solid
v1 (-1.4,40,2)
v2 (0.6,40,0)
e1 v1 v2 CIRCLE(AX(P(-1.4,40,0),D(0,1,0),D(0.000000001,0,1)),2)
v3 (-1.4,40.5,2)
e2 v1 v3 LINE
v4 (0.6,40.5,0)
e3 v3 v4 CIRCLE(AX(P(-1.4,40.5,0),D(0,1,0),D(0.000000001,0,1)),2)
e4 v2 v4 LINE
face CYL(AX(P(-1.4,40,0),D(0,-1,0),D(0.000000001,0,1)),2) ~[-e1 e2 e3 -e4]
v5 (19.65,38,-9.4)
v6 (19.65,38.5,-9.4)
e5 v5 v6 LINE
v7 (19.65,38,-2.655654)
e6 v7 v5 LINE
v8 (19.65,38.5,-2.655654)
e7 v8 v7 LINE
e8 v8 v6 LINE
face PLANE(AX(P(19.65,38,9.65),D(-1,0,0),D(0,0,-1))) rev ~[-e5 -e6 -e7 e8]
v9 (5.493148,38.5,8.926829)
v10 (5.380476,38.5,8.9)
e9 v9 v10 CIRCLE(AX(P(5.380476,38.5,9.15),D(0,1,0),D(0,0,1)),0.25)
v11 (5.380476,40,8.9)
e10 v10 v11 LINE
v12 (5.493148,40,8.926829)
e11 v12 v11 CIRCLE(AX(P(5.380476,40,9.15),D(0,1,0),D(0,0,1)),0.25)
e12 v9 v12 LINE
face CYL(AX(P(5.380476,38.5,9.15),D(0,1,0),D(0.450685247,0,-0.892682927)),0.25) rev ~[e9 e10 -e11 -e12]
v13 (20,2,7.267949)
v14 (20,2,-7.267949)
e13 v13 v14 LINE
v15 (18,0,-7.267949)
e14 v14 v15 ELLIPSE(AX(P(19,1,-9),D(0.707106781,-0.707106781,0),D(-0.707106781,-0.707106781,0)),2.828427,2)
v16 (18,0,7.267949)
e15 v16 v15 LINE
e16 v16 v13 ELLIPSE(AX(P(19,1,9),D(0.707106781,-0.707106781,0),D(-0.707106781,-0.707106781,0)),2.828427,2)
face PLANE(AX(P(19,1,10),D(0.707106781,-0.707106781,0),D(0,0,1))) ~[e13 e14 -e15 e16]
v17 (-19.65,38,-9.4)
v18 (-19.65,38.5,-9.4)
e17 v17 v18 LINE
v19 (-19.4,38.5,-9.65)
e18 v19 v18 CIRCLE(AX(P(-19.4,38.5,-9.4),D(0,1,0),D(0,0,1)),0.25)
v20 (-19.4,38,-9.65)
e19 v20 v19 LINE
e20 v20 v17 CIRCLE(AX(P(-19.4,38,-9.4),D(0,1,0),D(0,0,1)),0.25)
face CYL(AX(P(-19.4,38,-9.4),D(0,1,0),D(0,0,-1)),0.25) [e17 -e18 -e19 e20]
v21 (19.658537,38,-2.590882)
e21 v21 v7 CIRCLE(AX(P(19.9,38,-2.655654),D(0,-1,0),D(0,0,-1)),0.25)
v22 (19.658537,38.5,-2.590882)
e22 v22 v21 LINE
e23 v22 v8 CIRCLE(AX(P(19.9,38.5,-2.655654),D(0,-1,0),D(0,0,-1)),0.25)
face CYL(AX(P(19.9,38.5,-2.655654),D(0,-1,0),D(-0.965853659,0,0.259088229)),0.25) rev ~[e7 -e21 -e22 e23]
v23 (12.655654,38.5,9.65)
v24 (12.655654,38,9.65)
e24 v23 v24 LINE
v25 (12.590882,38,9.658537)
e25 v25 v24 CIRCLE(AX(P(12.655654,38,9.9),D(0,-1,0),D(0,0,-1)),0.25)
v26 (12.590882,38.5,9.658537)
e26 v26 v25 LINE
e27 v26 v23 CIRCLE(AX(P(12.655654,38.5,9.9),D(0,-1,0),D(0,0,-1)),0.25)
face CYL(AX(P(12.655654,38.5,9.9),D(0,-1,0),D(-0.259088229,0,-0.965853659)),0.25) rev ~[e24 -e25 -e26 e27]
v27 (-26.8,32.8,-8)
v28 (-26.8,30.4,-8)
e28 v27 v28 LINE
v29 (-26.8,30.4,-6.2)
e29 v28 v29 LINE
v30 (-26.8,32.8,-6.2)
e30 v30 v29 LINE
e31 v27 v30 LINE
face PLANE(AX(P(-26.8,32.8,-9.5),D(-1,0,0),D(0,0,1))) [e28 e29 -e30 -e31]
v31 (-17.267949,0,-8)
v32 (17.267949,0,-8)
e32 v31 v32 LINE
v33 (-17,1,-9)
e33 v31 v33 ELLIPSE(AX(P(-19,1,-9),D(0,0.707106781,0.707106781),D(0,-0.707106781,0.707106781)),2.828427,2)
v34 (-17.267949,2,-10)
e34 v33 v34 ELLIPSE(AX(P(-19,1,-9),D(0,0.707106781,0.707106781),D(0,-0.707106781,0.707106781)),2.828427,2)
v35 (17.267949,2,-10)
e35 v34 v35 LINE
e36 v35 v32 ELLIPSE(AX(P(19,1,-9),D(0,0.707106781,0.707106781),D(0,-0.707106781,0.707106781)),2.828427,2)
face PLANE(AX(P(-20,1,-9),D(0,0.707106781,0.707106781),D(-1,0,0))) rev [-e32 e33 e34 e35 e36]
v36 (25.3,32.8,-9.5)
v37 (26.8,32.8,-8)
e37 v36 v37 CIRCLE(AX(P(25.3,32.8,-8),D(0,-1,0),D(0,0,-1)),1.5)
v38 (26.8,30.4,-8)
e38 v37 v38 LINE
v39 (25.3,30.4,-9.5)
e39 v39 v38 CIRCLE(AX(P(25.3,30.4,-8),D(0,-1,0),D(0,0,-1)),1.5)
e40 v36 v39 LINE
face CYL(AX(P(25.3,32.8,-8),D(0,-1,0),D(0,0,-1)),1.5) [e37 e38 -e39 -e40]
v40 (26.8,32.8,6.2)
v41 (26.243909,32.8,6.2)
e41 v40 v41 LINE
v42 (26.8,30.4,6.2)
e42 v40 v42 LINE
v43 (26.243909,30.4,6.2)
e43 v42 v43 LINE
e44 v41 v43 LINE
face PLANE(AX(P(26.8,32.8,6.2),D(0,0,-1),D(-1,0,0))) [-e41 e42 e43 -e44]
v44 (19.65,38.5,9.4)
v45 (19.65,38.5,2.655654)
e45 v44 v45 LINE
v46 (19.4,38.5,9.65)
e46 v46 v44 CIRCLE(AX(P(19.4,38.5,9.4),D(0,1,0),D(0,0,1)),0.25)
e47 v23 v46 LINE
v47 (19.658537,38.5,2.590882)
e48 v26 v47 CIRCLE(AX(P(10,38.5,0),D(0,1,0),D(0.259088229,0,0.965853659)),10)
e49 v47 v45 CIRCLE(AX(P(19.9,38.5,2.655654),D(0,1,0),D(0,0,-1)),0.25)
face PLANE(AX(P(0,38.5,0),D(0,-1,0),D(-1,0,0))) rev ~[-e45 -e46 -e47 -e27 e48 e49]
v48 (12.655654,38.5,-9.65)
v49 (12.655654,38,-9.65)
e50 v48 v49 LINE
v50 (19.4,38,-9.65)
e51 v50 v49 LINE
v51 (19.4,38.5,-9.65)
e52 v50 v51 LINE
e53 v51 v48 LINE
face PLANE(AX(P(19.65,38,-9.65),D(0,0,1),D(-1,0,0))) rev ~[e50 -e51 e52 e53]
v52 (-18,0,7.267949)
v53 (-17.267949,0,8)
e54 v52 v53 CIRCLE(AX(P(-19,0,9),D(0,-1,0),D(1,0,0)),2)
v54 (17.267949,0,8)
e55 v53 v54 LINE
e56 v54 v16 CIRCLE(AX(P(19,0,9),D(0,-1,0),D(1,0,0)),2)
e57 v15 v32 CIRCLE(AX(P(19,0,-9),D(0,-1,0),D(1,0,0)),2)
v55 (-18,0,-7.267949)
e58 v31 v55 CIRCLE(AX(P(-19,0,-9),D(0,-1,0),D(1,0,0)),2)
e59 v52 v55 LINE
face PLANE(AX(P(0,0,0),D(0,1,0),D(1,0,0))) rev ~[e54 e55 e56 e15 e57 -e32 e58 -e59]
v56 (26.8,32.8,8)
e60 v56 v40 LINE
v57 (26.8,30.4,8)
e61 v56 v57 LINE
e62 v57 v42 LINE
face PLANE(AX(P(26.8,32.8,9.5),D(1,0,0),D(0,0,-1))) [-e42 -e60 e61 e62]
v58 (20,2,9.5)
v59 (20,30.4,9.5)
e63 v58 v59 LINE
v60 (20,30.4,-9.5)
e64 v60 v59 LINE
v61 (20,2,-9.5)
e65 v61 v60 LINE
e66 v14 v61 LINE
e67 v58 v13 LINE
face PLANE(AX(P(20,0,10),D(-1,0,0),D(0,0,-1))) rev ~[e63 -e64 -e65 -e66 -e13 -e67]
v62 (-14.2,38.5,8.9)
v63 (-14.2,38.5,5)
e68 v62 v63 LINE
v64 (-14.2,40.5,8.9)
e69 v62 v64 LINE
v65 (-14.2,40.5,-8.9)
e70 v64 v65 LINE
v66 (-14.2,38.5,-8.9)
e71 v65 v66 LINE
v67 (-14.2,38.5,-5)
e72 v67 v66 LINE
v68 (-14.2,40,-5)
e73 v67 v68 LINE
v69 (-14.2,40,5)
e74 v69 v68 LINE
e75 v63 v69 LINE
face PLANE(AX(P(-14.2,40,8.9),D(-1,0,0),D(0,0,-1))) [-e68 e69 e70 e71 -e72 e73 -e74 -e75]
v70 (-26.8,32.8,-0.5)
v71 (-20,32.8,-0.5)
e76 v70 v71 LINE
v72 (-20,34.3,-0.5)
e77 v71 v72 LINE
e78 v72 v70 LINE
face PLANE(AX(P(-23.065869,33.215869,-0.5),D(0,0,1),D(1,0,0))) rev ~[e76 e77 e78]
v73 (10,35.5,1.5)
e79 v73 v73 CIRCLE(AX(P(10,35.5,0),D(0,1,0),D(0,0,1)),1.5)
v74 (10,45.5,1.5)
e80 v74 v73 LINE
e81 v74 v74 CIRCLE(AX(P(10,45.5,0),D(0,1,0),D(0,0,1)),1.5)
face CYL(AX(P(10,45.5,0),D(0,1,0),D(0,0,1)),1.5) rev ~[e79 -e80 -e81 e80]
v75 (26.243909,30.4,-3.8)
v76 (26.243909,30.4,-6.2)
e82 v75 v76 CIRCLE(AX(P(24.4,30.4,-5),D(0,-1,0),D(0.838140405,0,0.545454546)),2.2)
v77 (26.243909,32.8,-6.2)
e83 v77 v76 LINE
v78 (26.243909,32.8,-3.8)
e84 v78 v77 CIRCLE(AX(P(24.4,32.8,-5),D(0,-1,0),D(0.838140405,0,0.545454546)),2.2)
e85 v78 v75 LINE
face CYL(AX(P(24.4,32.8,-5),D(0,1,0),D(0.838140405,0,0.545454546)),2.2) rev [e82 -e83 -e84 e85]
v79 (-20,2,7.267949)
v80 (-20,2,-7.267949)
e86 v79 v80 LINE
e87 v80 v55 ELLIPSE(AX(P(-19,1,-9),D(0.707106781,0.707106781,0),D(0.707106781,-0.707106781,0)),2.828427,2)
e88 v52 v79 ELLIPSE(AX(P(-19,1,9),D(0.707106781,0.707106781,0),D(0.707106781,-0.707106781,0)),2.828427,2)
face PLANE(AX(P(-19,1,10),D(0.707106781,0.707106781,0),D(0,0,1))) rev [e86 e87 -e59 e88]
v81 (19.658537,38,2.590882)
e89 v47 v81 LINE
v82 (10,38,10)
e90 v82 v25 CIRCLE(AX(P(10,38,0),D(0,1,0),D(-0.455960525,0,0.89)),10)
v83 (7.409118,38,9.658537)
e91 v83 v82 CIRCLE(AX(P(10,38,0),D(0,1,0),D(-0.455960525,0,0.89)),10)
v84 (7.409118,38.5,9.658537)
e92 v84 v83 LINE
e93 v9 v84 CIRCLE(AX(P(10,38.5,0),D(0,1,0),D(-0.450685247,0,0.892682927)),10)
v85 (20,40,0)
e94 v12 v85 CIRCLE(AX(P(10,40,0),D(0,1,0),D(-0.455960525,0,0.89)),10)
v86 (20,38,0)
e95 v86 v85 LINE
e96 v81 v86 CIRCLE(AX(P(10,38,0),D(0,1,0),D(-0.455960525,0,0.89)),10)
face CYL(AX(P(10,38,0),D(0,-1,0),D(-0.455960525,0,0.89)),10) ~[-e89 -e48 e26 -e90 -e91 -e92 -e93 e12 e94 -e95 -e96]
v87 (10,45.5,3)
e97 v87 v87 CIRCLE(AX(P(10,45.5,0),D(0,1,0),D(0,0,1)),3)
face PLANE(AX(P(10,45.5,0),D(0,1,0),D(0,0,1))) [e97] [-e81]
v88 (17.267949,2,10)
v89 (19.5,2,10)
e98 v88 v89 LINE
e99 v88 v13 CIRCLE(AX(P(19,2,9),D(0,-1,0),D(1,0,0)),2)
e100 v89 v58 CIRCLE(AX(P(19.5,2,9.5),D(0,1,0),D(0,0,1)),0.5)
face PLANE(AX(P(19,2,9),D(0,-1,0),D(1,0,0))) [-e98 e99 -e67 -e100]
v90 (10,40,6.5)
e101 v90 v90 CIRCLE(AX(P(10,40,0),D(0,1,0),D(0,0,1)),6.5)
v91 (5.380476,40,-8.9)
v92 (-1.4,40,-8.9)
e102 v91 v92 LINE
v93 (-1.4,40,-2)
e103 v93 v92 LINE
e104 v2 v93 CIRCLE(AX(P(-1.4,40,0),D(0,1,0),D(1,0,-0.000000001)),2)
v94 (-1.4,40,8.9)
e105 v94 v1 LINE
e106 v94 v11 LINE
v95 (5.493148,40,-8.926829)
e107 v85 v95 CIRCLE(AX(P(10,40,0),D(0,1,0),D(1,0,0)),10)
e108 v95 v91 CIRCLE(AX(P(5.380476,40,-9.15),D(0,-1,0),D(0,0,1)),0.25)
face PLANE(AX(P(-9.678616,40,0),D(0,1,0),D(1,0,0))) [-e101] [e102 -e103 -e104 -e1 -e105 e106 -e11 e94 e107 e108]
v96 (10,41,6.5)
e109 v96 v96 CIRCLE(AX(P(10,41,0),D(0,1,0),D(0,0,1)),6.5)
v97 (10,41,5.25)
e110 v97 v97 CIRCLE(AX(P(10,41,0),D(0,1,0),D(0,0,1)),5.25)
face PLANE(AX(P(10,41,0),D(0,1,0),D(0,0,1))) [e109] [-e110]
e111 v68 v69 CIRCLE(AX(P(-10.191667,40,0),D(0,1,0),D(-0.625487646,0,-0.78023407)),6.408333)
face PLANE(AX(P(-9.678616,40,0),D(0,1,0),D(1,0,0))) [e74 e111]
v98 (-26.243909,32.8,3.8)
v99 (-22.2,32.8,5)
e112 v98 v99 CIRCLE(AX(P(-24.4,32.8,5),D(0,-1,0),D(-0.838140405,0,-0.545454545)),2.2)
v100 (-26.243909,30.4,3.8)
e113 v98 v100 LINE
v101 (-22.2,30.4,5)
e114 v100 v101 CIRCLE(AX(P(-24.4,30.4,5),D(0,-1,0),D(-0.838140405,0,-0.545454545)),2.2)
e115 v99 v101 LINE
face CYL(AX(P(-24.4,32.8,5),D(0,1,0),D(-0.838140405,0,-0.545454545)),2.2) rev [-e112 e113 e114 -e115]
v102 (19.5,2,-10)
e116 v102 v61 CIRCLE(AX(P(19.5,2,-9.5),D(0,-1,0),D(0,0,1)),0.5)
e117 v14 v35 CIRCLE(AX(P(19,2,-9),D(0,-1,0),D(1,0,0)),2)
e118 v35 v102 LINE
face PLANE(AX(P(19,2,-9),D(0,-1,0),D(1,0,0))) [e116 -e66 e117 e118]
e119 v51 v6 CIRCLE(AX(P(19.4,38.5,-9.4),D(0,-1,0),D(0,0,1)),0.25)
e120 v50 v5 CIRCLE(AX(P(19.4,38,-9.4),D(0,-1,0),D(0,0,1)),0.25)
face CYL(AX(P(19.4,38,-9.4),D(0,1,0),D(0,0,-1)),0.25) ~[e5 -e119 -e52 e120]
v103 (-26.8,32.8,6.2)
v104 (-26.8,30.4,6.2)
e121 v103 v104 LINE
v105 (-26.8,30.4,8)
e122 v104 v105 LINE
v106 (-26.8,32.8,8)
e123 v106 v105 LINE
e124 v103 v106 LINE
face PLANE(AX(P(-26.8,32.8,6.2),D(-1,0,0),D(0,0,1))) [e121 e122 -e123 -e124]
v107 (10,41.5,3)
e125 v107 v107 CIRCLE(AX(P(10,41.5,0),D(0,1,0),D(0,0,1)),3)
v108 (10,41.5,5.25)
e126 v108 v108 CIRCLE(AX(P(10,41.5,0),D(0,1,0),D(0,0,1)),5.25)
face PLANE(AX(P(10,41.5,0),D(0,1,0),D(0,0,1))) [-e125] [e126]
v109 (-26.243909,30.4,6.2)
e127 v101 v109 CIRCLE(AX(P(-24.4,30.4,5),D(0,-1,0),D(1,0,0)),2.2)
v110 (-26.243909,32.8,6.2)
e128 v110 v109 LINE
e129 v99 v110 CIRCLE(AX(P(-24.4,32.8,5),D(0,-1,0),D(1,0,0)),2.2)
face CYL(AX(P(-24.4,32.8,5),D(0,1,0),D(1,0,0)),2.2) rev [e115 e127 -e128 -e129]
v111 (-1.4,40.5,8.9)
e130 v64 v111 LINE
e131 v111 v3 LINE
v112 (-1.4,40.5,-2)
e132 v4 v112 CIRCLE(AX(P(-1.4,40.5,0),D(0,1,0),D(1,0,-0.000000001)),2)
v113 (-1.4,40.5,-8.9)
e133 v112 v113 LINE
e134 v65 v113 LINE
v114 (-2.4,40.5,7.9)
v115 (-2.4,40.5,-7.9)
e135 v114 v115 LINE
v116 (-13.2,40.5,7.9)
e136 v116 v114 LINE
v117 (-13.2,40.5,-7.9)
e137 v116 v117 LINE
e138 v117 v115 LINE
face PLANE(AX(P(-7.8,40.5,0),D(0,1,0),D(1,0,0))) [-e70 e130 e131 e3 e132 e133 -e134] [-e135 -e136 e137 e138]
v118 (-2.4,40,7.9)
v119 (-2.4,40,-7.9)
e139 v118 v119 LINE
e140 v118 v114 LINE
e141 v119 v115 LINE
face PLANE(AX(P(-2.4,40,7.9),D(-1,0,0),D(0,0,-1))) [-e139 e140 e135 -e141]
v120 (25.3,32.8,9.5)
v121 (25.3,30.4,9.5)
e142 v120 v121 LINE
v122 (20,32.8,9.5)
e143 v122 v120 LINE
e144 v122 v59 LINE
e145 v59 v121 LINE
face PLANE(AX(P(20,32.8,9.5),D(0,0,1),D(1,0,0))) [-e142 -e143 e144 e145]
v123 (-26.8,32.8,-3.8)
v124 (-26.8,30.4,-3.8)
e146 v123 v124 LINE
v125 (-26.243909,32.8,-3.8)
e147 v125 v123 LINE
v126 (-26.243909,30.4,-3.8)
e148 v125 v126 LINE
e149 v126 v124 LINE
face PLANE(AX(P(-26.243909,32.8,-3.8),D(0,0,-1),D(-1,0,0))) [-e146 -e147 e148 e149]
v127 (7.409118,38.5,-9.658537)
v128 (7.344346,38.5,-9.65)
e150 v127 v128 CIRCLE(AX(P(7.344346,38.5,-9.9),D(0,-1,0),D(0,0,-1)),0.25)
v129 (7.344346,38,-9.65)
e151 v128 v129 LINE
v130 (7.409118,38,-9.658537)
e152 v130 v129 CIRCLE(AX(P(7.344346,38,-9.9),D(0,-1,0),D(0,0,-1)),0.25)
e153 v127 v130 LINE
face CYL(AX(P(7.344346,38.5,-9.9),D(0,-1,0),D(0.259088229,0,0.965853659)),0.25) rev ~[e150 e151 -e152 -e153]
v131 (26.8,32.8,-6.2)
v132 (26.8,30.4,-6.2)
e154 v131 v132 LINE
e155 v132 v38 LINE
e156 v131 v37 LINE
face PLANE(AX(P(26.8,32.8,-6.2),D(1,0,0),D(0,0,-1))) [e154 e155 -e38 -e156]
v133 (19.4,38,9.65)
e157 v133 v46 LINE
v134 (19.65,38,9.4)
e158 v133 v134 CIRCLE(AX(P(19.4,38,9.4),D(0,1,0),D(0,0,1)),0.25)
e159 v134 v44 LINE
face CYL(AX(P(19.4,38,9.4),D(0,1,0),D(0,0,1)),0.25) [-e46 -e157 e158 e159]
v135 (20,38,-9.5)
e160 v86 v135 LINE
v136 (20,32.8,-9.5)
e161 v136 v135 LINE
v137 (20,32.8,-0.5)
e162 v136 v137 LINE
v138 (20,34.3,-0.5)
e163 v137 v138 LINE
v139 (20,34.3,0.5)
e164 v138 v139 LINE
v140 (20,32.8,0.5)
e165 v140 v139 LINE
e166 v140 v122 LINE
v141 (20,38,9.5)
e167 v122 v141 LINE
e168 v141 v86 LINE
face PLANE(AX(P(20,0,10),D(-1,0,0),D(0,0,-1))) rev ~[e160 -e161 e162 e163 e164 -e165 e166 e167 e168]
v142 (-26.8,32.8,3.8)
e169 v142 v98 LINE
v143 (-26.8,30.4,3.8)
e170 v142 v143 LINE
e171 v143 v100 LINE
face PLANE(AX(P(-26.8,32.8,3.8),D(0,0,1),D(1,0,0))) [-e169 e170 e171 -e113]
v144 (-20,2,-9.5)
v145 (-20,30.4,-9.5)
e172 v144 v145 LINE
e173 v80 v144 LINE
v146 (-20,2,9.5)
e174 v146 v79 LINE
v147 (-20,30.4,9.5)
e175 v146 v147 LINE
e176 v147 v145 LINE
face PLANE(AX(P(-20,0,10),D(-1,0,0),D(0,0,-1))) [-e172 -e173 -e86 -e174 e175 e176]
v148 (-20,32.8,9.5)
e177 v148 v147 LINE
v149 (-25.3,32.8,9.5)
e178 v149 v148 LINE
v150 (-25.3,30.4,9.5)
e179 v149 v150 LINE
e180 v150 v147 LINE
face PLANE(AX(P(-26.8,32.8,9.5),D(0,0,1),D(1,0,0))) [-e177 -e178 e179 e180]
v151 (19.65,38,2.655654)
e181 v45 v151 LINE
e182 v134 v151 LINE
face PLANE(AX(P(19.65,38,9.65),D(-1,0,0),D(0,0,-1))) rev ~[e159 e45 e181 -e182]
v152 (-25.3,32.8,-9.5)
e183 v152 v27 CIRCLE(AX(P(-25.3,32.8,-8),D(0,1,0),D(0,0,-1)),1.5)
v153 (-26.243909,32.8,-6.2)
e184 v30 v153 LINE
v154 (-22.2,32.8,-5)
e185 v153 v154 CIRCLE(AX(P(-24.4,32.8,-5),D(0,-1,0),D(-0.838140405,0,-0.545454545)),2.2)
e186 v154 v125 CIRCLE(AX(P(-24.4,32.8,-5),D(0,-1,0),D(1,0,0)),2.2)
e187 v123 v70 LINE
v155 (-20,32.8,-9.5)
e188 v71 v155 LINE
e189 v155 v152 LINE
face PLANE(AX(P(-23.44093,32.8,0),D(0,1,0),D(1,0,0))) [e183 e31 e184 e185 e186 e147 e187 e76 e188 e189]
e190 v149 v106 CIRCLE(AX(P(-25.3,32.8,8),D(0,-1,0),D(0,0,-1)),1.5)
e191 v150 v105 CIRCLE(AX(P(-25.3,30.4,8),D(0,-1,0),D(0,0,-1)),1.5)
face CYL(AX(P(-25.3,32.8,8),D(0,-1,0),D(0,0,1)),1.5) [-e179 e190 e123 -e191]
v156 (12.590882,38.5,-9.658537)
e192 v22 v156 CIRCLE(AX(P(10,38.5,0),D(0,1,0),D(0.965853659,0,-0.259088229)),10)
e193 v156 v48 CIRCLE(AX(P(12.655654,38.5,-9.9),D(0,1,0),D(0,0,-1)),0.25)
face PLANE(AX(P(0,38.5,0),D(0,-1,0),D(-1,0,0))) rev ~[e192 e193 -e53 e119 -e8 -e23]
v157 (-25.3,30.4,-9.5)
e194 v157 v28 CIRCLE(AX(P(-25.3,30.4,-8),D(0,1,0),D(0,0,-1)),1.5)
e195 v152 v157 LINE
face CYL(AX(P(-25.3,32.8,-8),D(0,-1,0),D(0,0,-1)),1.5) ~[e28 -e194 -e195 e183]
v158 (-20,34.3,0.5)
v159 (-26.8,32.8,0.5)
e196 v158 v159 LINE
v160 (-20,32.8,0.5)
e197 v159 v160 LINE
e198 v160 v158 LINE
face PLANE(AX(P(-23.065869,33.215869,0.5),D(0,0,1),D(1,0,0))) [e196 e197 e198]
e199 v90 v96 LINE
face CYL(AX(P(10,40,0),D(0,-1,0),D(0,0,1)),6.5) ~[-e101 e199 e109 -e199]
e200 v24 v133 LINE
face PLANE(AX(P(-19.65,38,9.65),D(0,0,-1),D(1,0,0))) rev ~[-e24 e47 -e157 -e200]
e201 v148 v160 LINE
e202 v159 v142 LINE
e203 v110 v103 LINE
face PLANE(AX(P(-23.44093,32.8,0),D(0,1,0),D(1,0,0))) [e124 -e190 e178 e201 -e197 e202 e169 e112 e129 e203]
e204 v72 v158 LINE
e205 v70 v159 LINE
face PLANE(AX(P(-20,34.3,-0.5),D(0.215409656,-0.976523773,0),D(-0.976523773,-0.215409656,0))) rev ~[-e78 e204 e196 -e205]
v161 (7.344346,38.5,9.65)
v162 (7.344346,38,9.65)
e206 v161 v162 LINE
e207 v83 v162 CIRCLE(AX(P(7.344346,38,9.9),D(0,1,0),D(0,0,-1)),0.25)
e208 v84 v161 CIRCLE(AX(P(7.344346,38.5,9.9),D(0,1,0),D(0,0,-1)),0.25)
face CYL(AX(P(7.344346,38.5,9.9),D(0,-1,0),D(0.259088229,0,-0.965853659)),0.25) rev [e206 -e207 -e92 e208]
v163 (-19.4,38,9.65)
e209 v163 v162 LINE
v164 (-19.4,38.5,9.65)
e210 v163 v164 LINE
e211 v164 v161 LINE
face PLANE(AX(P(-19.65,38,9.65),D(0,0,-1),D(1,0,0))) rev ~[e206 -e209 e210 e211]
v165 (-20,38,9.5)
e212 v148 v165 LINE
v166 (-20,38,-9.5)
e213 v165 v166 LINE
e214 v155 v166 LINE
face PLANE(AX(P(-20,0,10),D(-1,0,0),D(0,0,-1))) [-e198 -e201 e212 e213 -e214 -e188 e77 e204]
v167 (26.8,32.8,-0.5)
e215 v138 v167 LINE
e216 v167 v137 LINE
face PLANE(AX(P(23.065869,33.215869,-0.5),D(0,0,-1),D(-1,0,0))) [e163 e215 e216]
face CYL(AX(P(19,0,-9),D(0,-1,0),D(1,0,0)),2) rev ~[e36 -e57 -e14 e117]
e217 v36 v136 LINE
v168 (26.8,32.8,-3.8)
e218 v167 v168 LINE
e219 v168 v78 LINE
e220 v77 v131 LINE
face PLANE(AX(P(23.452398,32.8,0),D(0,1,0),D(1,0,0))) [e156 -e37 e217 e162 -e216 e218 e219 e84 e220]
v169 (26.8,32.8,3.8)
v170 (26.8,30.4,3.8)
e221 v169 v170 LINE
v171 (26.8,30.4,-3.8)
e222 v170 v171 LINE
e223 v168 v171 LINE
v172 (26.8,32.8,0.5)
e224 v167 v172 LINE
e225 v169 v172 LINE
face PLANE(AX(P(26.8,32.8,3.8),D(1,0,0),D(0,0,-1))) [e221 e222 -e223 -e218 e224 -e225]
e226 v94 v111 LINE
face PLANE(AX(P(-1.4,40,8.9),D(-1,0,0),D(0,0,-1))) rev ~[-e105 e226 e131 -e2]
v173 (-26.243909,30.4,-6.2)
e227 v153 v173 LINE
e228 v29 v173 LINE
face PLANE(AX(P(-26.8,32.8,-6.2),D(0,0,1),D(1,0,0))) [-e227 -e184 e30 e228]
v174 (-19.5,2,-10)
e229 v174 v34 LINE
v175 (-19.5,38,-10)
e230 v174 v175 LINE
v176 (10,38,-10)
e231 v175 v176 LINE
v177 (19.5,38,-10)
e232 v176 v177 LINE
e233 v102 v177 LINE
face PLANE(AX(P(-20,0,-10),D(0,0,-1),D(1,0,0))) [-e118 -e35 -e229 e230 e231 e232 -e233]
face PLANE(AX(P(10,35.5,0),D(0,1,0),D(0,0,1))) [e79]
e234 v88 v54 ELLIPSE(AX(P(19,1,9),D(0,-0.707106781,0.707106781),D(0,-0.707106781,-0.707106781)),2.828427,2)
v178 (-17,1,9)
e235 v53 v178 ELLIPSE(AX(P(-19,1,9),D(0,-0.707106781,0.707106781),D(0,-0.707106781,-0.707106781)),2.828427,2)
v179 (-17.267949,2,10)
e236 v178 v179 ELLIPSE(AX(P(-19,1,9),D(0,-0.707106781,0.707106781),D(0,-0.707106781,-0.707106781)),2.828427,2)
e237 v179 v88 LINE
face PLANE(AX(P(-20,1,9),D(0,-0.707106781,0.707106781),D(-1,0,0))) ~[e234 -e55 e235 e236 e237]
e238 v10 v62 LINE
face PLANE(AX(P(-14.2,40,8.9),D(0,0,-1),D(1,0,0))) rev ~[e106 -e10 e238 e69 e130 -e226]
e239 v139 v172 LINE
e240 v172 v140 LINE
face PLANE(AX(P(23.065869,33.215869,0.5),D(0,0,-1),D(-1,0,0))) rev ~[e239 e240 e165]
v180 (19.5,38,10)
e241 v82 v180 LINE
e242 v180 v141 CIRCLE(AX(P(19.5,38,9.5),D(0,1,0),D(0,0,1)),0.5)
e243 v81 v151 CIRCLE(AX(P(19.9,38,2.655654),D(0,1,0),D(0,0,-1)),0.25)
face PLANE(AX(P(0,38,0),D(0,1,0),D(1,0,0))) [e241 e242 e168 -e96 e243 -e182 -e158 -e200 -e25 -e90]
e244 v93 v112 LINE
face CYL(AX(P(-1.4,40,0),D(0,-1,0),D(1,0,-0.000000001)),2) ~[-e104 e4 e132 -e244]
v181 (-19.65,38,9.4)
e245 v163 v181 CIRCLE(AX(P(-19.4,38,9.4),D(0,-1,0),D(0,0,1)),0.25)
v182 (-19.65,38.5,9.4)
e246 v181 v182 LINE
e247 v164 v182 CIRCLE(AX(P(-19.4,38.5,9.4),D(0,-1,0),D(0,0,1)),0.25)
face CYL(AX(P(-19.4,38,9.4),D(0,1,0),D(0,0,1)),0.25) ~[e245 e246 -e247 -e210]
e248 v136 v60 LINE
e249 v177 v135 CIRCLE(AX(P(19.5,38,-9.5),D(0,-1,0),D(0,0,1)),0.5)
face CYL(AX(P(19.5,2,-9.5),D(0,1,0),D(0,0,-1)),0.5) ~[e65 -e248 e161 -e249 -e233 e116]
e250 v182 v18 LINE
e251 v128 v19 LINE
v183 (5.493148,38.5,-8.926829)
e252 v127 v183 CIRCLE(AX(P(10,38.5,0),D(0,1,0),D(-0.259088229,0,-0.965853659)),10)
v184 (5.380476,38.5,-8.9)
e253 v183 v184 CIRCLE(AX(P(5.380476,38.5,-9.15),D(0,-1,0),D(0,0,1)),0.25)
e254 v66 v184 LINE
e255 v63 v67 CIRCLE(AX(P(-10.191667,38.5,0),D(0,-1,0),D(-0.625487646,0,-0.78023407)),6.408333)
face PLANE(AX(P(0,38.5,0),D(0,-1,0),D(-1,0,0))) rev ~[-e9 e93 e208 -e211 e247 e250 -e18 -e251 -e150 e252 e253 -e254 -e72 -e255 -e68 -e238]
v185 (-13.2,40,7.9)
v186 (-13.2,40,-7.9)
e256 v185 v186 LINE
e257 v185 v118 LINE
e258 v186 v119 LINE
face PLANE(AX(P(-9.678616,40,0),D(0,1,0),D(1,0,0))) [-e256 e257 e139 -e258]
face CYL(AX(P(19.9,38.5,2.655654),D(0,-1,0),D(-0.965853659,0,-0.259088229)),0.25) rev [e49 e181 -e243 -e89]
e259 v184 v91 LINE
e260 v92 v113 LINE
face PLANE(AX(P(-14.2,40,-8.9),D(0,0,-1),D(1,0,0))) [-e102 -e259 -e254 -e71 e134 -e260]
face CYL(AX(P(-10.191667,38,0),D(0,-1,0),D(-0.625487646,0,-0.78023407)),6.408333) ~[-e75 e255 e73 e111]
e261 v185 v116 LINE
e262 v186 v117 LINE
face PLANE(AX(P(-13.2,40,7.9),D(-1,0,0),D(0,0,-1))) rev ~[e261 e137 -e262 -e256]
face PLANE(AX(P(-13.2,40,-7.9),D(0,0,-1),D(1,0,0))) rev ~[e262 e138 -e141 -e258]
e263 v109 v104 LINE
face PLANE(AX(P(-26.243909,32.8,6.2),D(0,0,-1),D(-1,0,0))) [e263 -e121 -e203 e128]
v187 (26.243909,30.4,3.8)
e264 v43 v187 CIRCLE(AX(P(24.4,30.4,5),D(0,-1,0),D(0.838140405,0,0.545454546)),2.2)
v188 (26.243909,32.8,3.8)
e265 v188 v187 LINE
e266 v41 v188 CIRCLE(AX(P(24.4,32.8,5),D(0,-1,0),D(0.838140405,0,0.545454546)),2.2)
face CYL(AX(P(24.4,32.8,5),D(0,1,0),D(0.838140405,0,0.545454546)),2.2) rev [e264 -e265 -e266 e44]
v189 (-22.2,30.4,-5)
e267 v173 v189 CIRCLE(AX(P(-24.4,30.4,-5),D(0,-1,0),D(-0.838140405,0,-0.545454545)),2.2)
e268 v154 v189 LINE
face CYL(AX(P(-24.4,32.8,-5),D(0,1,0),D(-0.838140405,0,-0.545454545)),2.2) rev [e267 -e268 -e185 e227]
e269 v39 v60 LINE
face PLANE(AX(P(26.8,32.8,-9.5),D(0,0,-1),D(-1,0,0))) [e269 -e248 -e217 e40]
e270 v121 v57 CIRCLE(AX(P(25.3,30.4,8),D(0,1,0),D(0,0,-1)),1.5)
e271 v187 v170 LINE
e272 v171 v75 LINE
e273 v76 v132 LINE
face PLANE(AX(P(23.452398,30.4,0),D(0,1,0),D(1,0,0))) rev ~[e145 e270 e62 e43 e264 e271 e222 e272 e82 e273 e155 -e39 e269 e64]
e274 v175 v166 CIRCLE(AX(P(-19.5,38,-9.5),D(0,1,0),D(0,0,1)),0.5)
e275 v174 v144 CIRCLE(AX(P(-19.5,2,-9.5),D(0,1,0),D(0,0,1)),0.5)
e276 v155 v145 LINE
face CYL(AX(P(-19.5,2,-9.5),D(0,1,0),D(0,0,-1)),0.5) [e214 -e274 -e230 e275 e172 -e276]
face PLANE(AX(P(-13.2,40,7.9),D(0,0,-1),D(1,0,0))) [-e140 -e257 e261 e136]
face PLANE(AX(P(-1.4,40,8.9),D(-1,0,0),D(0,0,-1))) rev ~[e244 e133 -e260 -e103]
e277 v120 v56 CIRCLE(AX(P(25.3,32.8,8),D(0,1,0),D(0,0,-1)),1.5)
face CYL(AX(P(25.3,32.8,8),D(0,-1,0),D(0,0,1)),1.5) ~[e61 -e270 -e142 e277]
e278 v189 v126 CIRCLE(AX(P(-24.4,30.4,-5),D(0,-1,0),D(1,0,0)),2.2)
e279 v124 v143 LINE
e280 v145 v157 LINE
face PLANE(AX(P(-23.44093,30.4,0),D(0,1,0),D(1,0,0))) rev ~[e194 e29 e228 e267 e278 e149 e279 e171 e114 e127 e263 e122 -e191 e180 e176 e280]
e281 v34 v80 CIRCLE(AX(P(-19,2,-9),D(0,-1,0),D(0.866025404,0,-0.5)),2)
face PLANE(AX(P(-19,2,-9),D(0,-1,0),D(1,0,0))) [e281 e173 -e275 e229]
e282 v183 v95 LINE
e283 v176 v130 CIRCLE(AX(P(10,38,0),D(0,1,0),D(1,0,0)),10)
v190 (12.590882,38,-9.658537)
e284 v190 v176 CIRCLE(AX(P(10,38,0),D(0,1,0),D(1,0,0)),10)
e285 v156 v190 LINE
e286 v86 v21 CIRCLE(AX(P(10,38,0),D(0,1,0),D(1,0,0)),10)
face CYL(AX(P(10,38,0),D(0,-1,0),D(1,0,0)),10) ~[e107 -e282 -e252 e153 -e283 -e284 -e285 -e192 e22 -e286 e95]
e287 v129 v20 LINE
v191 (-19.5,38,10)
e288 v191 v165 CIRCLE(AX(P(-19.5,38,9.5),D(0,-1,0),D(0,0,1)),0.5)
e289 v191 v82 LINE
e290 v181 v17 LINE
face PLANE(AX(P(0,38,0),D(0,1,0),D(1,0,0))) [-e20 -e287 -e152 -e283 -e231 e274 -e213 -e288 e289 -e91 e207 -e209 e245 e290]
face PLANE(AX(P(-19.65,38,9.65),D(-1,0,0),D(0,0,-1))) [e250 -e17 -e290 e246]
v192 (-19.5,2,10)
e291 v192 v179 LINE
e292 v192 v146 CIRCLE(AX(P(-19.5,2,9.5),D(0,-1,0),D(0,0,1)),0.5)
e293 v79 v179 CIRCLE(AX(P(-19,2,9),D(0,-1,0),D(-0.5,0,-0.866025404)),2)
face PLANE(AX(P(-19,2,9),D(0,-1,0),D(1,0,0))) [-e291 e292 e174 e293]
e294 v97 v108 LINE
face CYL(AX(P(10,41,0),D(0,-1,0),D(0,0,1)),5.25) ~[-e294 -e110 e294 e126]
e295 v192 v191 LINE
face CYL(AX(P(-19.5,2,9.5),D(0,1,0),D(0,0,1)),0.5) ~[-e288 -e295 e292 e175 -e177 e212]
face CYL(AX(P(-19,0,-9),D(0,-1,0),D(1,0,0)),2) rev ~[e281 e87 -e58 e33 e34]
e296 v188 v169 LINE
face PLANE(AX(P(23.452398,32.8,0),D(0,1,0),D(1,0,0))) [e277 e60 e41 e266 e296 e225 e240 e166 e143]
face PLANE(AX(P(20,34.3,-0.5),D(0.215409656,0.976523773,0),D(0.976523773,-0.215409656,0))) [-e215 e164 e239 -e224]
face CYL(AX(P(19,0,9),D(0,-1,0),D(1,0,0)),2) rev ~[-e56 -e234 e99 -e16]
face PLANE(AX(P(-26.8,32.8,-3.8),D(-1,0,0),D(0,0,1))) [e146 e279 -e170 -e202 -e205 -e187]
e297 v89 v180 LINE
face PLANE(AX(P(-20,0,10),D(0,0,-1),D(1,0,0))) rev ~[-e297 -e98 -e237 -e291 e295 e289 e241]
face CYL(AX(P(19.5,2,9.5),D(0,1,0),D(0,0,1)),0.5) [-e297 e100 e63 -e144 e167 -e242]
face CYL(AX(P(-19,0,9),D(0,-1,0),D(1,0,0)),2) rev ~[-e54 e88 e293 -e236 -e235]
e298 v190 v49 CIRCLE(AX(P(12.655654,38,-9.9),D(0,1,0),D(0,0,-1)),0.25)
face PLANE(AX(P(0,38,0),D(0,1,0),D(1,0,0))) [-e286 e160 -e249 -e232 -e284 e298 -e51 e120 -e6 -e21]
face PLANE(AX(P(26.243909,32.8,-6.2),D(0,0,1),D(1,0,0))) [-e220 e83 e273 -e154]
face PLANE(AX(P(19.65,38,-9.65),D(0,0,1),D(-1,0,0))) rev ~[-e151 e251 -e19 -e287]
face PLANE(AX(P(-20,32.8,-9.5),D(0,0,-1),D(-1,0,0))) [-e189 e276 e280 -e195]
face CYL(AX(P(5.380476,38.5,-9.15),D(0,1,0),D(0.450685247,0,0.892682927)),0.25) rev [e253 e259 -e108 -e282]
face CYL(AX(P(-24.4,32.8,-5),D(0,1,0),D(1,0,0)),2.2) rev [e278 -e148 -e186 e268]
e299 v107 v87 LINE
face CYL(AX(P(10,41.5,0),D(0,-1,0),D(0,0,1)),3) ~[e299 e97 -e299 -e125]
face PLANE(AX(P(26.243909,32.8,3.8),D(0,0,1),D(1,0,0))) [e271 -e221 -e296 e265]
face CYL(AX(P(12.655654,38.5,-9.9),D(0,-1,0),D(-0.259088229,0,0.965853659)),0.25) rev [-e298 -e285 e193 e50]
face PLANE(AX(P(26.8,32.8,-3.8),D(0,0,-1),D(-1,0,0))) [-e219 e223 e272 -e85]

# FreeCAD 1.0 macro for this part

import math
import FreeCAD as App
import Part
import Sketcher
Q = App.Units.Quantity


def edges_at(feature, points):
    """Names of the edges that pass closest to the given points."""
    edges = feature.Shape.Edges
    near = lambda p: min(range(len(edges)), key=lambda i: edges[i].distToShape(Part.Vertex(*p))[0])
    return sorted({f"Edge{near(p) + 1}" for p in points})

doc = App.newDocument("Part")
body = doc.addObject("PartDesign::Body", "Body")

sketch1 = doc.addObject("Sketcher::SketchObject", "Sketch")
body.addObject(sketch1)
sketch1.AttachmentSupport = (doc.XZ_Plane, [""])
sketch1.MapMode = "FlatFace"
sketch1.addGeometry([
    Part.LineSegment(App.Vector(-20, -10, 0), App.Vector(-20, 10, 0)),
    Part.LineSegment(App.Vector(-20, 10, 0), App.Vector(20, 10, 0)),
    Part.LineSegment(App.Vector(20, 10, 0), App.Vector(20, -10, 0)),
    Part.LineSegment(App.Vector(20, -10, 0), App.Vector(-20, -10, 0)),
], False)
sketch1.addConstraint([
    Sketcher.Constraint("Coincident", 0, 2, 1, 1),
    Sketcher.Constraint("Coincident", 1, 2, 2, 1),
    Sketcher.Constraint("Coincident", 2, 2, 3, 1),
    Sketcher.Constraint("Coincident", 3, 2, 0, 1),
    Sketcher.Constraint("Vertical", 0),
    Sketcher.Constraint("Horizontal", 1),
    Sketcher.Constraint("Vertical", 2),
    Sketcher.Constraint("Horizontal", 3),
    Sketcher.Constraint("Symmetric", 0, 2, 2, 2, -1, 1),
    Sketcher.Constraint("DistanceX", 1, 1, 1, 2, Q("40 mm")),
    Sketcher.Constraint("DistanceY", 0, 1, 0, 2, Q("20 mm")),
])
pad1 = doc.addObject("PartDesign::Pad", "Pad")
body.addObject(pad1)
pad1.Profile = sketch1
pad1.Length = 38
pad1.Reversed = True

sketch2 = doc.addObject("Sketcher::SketchObject", "Sketch001")
body.addObject(sketch2)
sketch2.AttachmentSupport = (doc.XZ_Plane, [""])
sketch2.MapMode = "FlatFace"
sketch2.AttachmentOffset = App.Placement(App.Vector(0, 0, -38), App.Rotation())
sketch2.addGeometry([
    Part.LineSegment(App.Vector(5.4, -8.9, 0), App.Vector(-14.2, -8.9, 0)),
    Part.LineSegment(App.Vector(-14.2, -8.9, 0), App.Vector(-14.2, -5, 0)),
    Part.ArcOfCircle(Part.Circle(App.Vector(-10.2, 0, 0), App.Vector(0, 0, 1), 6.4), math.radians(129), math.radians(231)),
    Part.LineSegment(App.Vector(-14.2, 5, 0), App.Vector(-14.2, 8.9, 0)),
    Part.LineSegment(App.Vector(-14.2, 8.9, 0), App.Vector(5.4, 8.9, 0)),
    Part.ArcOfCircle(Part.Circle(App.Vector(10, 0, 0), App.Vector(0, 0, 1), 10), math.radians(0), math.radians(117)),
    Part.ArcOfCircle(Part.Circle(App.Vector(10, 0, 0), App.Vector(0, 0, 1), 10), math.radians(-117), math.radians(0)),
], False)
sketch2.addConstraint([
    Sketcher.Constraint("Coincident", 0, 2, 1, 1),
    Sketcher.Constraint("Coincident", 1, 2, 2, 2),
    Sketcher.Constraint("Coincident", 2, 1, 3, 1),
    Sketcher.Constraint("Coincident", 3, 2, 4, 1),
    Sketcher.Constraint("Coincident", 4, 2, 5, 2),
    Sketcher.Constraint("Tangent", 5, 1, 6, 2),
    Sketcher.Constraint("Coincident", 6, 1, 0, 1),
    Sketcher.Constraint("Horizontal", 0),
    Sketcher.Constraint("Vertical", 1),
    Sketcher.Constraint("Vertical", 3),
    Sketcher.Constraint("Horizontal", 4),
    Sketcher.Constraint("Equal", 5, 6),
    Sketcher.Constraint("Symmetric", 1, 2, 2, 1, -1),
    Sketcher.Constraint("Symmetric", 4, 2, 6, 1, -1),
    Sketcher.Constraint("PointOnObject", 5, 1, -1),
    Sketcher.Constraint("Radius", 5, Q("10 mm")),
    Sketcher.Constraint("DistanceY", 1, 1, 1, 2, Q("3.9 mm")),
    Sketcher.Constraint("DistanceX", -1, 1, 5, 3, Q("10 mm")),
    Sketcher.Constraint("DistanceY", 1, 2, -1, 1, Q("5 mm")),
    Sketcher.Constraint("DistanceX", 0, 2, -1, 1, Q("14.2 mm")),
    Sketcher.Constraint("Radius", 2, Q("6.408333 mm")),
])
pad2 = doc.addObject("PartDesign::Pad", "Pad001")
body.addObject(pad2)
pad2.Profile = sketch2
pad2.Length = 2
pad2.Reversed = True

sketch3 = doc.addObject("Sketcher::SketchObject", "Sketch002")
body.addObject(sketch3)
sketch3.AttachmentSupport = (doc.XZ_Plane, [""])
sketch3.MapMode = "FlatFace"
sketch3.AttachmentOffset = App.Placement(App.Vector(0, 0, -38), App.Rotation())
sketch3.addGeometry([
    Part.LineSegment(App.Vector(20, -10, 0), App.Vector(-20, -10, 0)),
    Part.LineSegment(App.Vector(-20, -10, 0), App.Vector(-20, 10, 0)),
    Part.LineSegment(App.Vector(-20, 10, 0), App.Vector(20, 10, 0)),
    Part.LineSegment(App.Vector(20, 10, 0), App.Vector(20, -10, 0)),
], False)
sketch3.addConstraint([
    Sketcher.Constraint("Coincident", 0, 2, 1, 1),
    Sketcher.Constraint("Coincident", 1, 2, 2, 1),
    Sketcher.Constraint("Coincident", 2, 2, 3, 1),
    Sketcher.Constraint("Coincident", 3, 2, 0, 1),
    Sketcher.Constraint("Horizontal", 0),
    Sketcher.Constraint("Vertical", 1),
    Sketcher.Constraint("Horizontal", 2),
    Sketcher.Constraint("Vertical", 3),
    Sketcher.Constraint("Symmetric", 0, 2, 2, 2, -1, 1),
    Sketcher.Constraint("DistanceX", 0, 2, 0, 1, Q("39.3 mm")),
    Sketcher.Constraint("DistanceY", 1, 1, 1, 2, Q("19.3 mm")),
])
pad3 = doc.addObject("PartDesign::Pad", "Pad002")
body.addObject(pad3)
pad3.Profile = sketch3
pad3.Length = 0.5
pad3.Reversed = True

sketch4 = doc.addObject("Sketcher::SketchObject", "Sketch003")
body.addObject(sketch4)
sketch4.AttachmentSupport = (doc.XZ_Plane, [""])
sketch4.MapMode = "FlatFace"
sketch4.AttachmentOffset = App.Placement(App.Vector(0, 0, -40), App.Rotation())
sketch4.addGeometry([
    Part.LineSegment(App.Vector(-14, -9, 0), App.Vector(-14, 9, 0)),
    Part.LineSegment(App.Vector(-14, 9, 0), App.Vector(-1, 9, 0)),
    Part.LineSegment(App.Vector(-1, 9, 0), App.Vector(-1, -9, 0)),
    Part.LineSegment(App.Vector(-1, -9, 0), App.Vector(-14, -9, 0)),
    Part.LineSegment(App.Vector(-2, 8, 0), App.Vector(-13, 8, 0)),
    Part.LineSegment(App.Vector(-13, 8, 0), App.Vector(-13, -8, 0)),
    Part.LineSegment(App.Vector(-13, -8, 0), App.Vector(-2, -8, 0)),
    Part.LineSegment(App.Vector(-2, -8, 0), App.Vector(-2, 8, 0)),
], False)
sketch4.addConstraint([
    Sketcher.Constraint("Coincident", 0, 2, 1, 1),
    Sketcher.Constraint("Coincident", 1, 2, 2, 1),
    Sketcher.Constraint("Coincident", 2, 2, 3, 1),
    Sketcher.Constraint("Coincident", 3, 2, 0, 1),
    Sketcher.Constraint("Coincident", 4, 2, 5, 1),
    Sketcher.Constraint("Coincident", 5, 2, 6, 1),
    Sketcher.Constraint("Coincident", 6, 2, 7, 1),
    Sketcher.Constraint("Coincident", 7, 2, 4, 1),
    Sketcher.Constraint("Vertical", 0),
    Sketcher.Constraint("Horizontal", 1),
    Sketcher.Constraint("Vertical", 2),
    Sketcher.Constraint("Horizontal", 3),
    Sketcher.Constraint("Horizontal", 4),
    Sketcher.Constraint("Vertical", 5),
    Sketcher.Constraint("Horizontal", 6),
    Sketcher.Constraint("Vertical", 7),
    Sketcher.Constraint("DistanceX", 1, 1, 1, 2, Q("12.8 mm")),
    Sketcher.Constraint("DistanceX", 4, 2, 4, 1, Q("10.8 mm")),
    Sketcher.Constraint("DistanceY", 0, 1, 0, 2, Q("17.8 mm")),
    Sketcher.Constraint("DistanceY", 5, 2, 5, 1, Q("15.8 mm")),
    Sketcher.Constraint("DistanceX", 0, 2, 4, 2, Q("1 mm")),
    Sketcher.Constraint("DistanceY", 4, 2, 0, 2, Q("1 mm")),
    Sketcher.Constraint("DistanceX", 0, 2, -1, 1, Q("14.2 mm")),
    Sketcher.Constraint("DistanceY", -1, 1, 0, 2, Q("8.9 mm")),
])
pad4 = doc.addObject("PartDesign::Pad", "Pad003")
body.addObject(pad4)
pad4.Profile = sketch4
pad4.Length = 0.5
pad4.Reversed = True

sketch5 = doc.addObject("Sketcher::SketchObject", "Sketch004")
body.addObject(sketch5)
sketch5.AttachmentSupport = (doc.XZ_Plane, [""])
sketch5.MapMode = "FlatFace"
sketch5.AttachmentOffset = App.Placement(App.Vector(0, 0, -40), App.Rotation())
sketch5.addGeometry([
    Part.ArcOfCircle(Part.Circle(App.Vector(-1.4, 0, 0), App.Vector(0, 0, 1), 2), math.radians(-90), math.radians(0)),
    Part.LineSegment(App.Vector(-1.4, -2, 0), App.Vector(-1.4, 2, 0)),
    Part.ArcOfCircle(Part.Circle(App.Vector(-1.4, 0, 0), App.Vector(0, 0, 1), 2), math.radians(0), math.radians(90)),
], False)
sketch5.addConstraint([
    Sketcher.Constraint("Coincident", 0, 1, 1, 1),
    Sketcher.Constraint("Coincident", 1, 2, 2, 2),
    Sketcher.Constraint("Tangent", 2, 1, 0, 2),
    Sketcher.Constraint("Vertical", 1),
    Sketcher.Constraint("Equal", 0, 2),
    Sketcher.Constraint("PointOnObject", 0, 3, -1),
    Sketcher.Constraint("PointOnObject", 2, 1, -1),
    Sketcher.Constraint("Vertical", 2, 3, 0, 1),
    Sketcher.Constraint("Radius", 0, Q("2 mm")),
    Sketcher.Constraint("DistanceX", 0, 3, -1, 1, Q("1.4 mm")),
])
pad5 = doc.addObject("PartDesign::Pad", "Pad004")
body.addObject(pad5)
pad5.Profile = sketch5
pad5.Length = 0.5
pad5.Reversed = True

sketch6 = doc.addObject("Sketcher::SketchObject", "Sketch005")
body.addObject(sketch6)
sketch6.AttachmentSupport = (doc.XZ_Plane, [""])
sketch6.MapMode = "FlatFace"
sketch6.AttachmentOffset = App.Placement(App.Vector(0, 0, -40), App.Rotation())
sketch6.addGeometry(Part.Circle(App.Vector(10, 0, 0), App.Vector(0, 0, 1), 6), False)
sketch6.addConstraint([
    Sketcher.Constraint("PointOnObject", 0, 3, -1),
    Sketcher.Constraint("Diameter", 0, Q("13 mm")),
    Sketcher.Constraint("DistanceX", -1, 1, 0, 3, Q("10 mm")),
])
pad6 = doc.addObject("PartDesign::Pad", "Pad005")
body.addObject(pad6)
pad6.Profile = sketch6
pad6.Length = 1
pad6.Reversed = True

sketch7 = doc.addObject("Sketcher::SketchObject", "Sketch006")
body.addObject(sketch7)
sketch7.AttachmentSupport = (doc.XZ_Plane, [""])
sketch7.MapMode = "FlatFace"
sketch7.AttachmentOffset = App.Placement(App.Vector(0, 0, -41), App.Rotation())
sketch7.addGeometry(Part.Circle(App.Vector(10, 0, 0), App.Vector(0, 0, 1), 5), False)
sketch7.addConstraint([
    Sketcher.Constraint("PointOnObject", 0, 3, -1),
    Sketcher.Constraint("Diameter", 0, Q("10.5 mm")),
    Sketcher.Constraint("DistanceX", -1, 1, 0, 3, Q("10 mm")),
])
pad7 = doc.addObject("PartDesign::Pad", "Pad006")
body.addObject(pad7)
pad7.Profile = sketch7
pad7.Length = 0.5
pad7.Reversed = True

sketch8 = doc.addObject("Sketcher::SketchObject", "Sketch007")
body.addObject(sketch8)
sketch8.AttachmentSupport = (doc.XZ_Plane, [""])
sketch8.MapMode = "FlatFace"
sketch8.AttachmentOffset = App.Placement(App.Vector(0, 0, -41.5), App.Rotation())
sketch8.addGeometry(Part.Circle(App.Vector(10, 0, 0), App.Vector(0, 0, 1), 3), False)
sketch8.addConstraint([
    Sketcher.Constraint("PointOnObject", 0, 3, -1),
    Sketcher.Constraint("Diameter", 0, Q("6 mm")),
    Sketcher.Constraint("DistanceX", -1, 1, 0, 3, Q("10 mm")),
])
pad8 = doc.addObject("PartDesign::Pad", "Pad007")
body.addObject(pad8)
pad8.Profile = sketch8
pad8.Length = 4
pad8.Reversed = True

sketch9 = doc.addObject("Sketcher::SketchObject", "Sketch008")
body.addObject(sketch9)
sketch9.AttachmentSupport = (doc.XZ_Plane, [""])
sketch9.MapMode = "FlatFace"
sketch9.AttachmentOffset = App.Placement(App.Vector(0, 0, -45.5), App.Rotation())
sketch9.addGeometry(Part.Circle(App.Vector(10, 0, 0), App.Vector(0, 0, 1), 1.5), False)
sketch9.addConstraint([
    Sketcher.Constraint("PointOnObject", 0, 3, -1),
    Sketcher.Constraint("Diameter", 0, Q("3 mm")),
    Sketcher.Constraint("DistanceX", -1, 1, 0, 3, Q("10 mm")),
])
pocket1 = doc.addObject("PartDesign::Pocket", "Pocket")
body.addObject(pocket1)
pocket1.Profile = sketch9
pocket1.Length = 10
pocket1.Reversed = True
doc.recompute()

chamfer = doc.addObject("PartDesign::Chamfer", "Chamfer")
body.addObject(chamfer)
chamfer.Base = (pocket1, edges_at(pocket1, [
    (-20, 0, 0),
    (0, 0, 10),
    (20, 0, 0),
    (0, 0, -10),
]))
chamfer.Size = 2

sketch10 = doc.addObject("Sketcher::SketchObject", "Sketch009")
body.addObject(sketch10)
sketch10.AttachmentSupport = (doc.XZ_Plane, [""])
sketch10.MapMode = "FlatFace"
sketch10.addGeometry([
    Part.Circle(App.Vector(19, 9, 0), App.Vector(0, 0, 1), 2),
    Part.Circle(App.Vector(-19, 9, 0), App.Vector(0, 0, 1), 2),
    Part.Circle(App.Vector(19, -9, 0), App.Vector(0, 0, 1), 2),
    Part.Circle(App.Vector(-19, -9, 0), App.Vector(0, 0, 1), 2),
], False)
sketch10.addConstraint([
    Sketcher.Constraint("Equal", 0, 1),
    Sketcher.Constraint("Equal", 1, 2),
    Sketcher.Constraint("Equal", 2, 3),
    Sketcher.Constraint("Symmetric", 1, 3, 2, 3, -1, 1),
    Sketcher.Constraint("Symmetric", 0, 3, 3, 3, -1, 1),
    Sketcher.Constraint("Symmetric", 0, 3, 1, 3, -2),
    Sketcher.Constraint("Diameter", 0, Q("4 mm")),
    Sketcher.Constraint("DistanceX", -1, 1, 0, 3, Q("19 mm")),
    Sketcher.Constraint("DistanceY", -1, 1, 0, 3, Q("9 mm")),
])
pocket2 = doc.addObject("PartDesign::Pocket", "Pocket001")
body.addObject(pocket2)
pocket2.Profile = sketch10
pocket2.Length = 2
doc.recompute()

fillet = doc.addObject("PartDesign::Fillet", "Fillet")
body.addObject(fillet)
fillet.Base = (pocket2, edges_at(pocket2, [
    (-20, 20, -10),
    (-20, 20, 10),
    (20, 20, 10),
    (20, 20, -10),
]))
fillet.Radius = 0.5
doc.recompute()

fillet2 = doc.addObject("PartDesign::Fillet", "Fillet001")
body.addObject(fillet2)
fillet2.Base = (fillet, edges_at(fillet, [
    (5.44, 39.25, 8.9),
    (5.44, 39.25, -8.9),
    (7.378, 38.25, 9.65),
    (7.378, 38.25, -9.65),
    (12.622, 38.25, -9.65),
    (19.65, 38.25, -2.622),
    (19.65, 38.25, 2.622),
    (12.622, 38.25, 9.65),
    (-19.65, 38.25, 9.65),
    (19.65, 38.25, 9.65),
    (19.65, 38.25, -9.65),
    (-19.65, 38.25, -9.65),
]))
fillet2.Radius = 0.25

sketch11 = doc.addObject("Sketcher::SketchObject", "Sketch010")
body.addObject(sketch11)
sketch11.AttachmentSupport = (doc.XZ_Plane, [""])
sketch11.MapMode = "FlatFace"
sketch11.AttachmentOffset = App.Placement(App.Vector(0, 0, -32.8), App.Rotation())
sketch11.addGeometry([
    Part.LineSegment(App.Vector(-20, 9.5, 0), App.Vector(-20, -9.5, 0)),
    Part.LineSegment(App.Vector(-20, -9.5, 0), App.Vector(-26.8, -9.5, 0)),
    Part.LineSegment(App.Vector(-26.8, -9.5, 0), App.Vector(-26.8, -6.2, 0)),
    Part.LineSegment(App.Vector(-26.8, -6.2, 0), App.Vector(-26.2, -6.2, 0)),
    Part.ArcOfCircle(Part.Circle(App.Vector(-24.4, -5, 0), App.Vector(0, 0, 1), 2.2), math.radians(-147), math.radians(0)),
    Part.ArcOfCircle(Part.Circle(App.Vector(-24.4, -5, 0), App.Vector(0, 0, 1), 2.2), math.radians(0), math.radians(147)),
    Part.LineSegment(App.Vector(-26.2, -3.8, 0), App.Vector(-26.8, -3.8, 0)),
    Part.LineSegment(App.Vector(-26.8, -3.8, 0), App.Vector(-26.8, 3.8, 0)),
    Part.LineSegment(App.Vector(-26.8, 3.8, 0), App.Vector(-26.2, 3.8, 0)),
    Part.ArcOfCircle(Part.Circle(App.Vector(-24.4, 5, 0), App.Vector(0, 0, 1), 2.2), math.radians(-147), math.radians(0)),
    Part.ArcOfCircle(Part.Circle(App.Vector(-24.4, 5, 0), App.Vector(0, 0, 1), 2.2), math.radians(0), math.radians(147)),
    Part.LineSegment(App.Vector(-26.2, 6.2, 0), App.Vector(-26.8, 6.2, 0)),
    Part.LineSegment(App.Vector(-26.8, 6.2, 0), App.Vector(-26.8, 9.5, 0)),
    Part.LineSegment(App.Vector(-26.8, 9.5, 0), App.Vector(-20, 9.5, 0)),
    Part.LineSegment(App.Vector(26.2, -6.2, 0), App.Vector(26.8, -6.2, 0)),
    Part.LineSegment(App.Vector(26.8, -6.2, 0), App.Vector(26.8, -9.5, 0)),
    Part.LineSegment(App.Vector(26.8, -9.5, 0), App.Vector(20, -9.5, 0)),
    Part.LineSegment(App.Vector(20, -9.5, 0), App.Vector(20, 9.5, 0)),
    Part.LineSegment(App.Vector(20, 9.5, 0), App.Vector(26.8, 9.5, 0)),
    Part.LineSegment(App.Vector(26.8, 9.5, 0), App.Vector(26.8, 6.2, 0)),
    Part.LineSegment(App.Vector(26.8, 6.2, 0), App.Vector(26.2, 6.2, 0)),
    Part.ArcOfCircle(Part.Circle(App.Vector(24.4, 5, 0), App.Vector(0, 0, 1), 2.2), math.radians(33), math.radians(327)),
    Part.LineSegment(App.Vector(26.2, 3.8, 0), App.Vector(26.8, 3.8, 0)),
    Part.LineSegment(App.Vector(26.8, 3.8, 0), App.Vector(26.8, -3.8, 0)),
    Part.LineSegment(App.Vector(26.8, -3.8, 0), App.Vector(26.2, -3.8, 0)),
    Part.ArcOfCircle(Part.Circle(App.Vector(24.4, -5, 0), App.Vector(0, 0, 1), 2.2), math.radians(33), math.radians(327)),
], False)
sketch11.addConstraint([
    Sketcher.Constraint("Coincident", 0, 2, 1, 1),
    Sketcher.Constraint("Coincident", 1, 2, 2, 1),
    Sketcher.Constraint("Coincident", 2, 2, 3, 1),
    Sketcher.Constraint("Coincident", 3, 2, 4, 1),
    Sketcher.Constraint("Tangent", 4, 2, 5, 1),
    Sketcher.Constraint("Coincident", 5, 2, 6, 1),
    Sketcher.Constraint("Coincident", 6, 2, 7, 1),
    Sketcher.Constraint("Coincident", 7, 2, 8, 1),
    Sketcher.Constraint("Coincident", 8, 2, 9, 1),
    Sketcher.Constraint("Tangent", 9, 2, 10, 1),
    Sketcher.Constraint("Coincident", 10, 2, 11, 1),
    Sketcher.Constraint("Coincident", 11, 2, 12, 1),
    Sketcher.Constraint("Coincident", 12, 2, 13, 1),
    Sketcher.Constraint("Coincident", 13, 2, 0, 1),
    Sketcher.Constraint("Coincident", 14, 2, 15, 1),
    Sketcher.Constraint("Coincident", 15, 2, 16, 1),
    Sketcher.Constraint("Coincident", 16, 2, 17, 1),
    Sketcher.Constraint("Coincident", 17, 2, 18, 1),
    Sketcher.Constraint("Coincident", 18, 2, 19, 1),
    Sketcher.Constraint("Coincident", 19, 2, 20, 1),
    Sketcher.Constraint("Coincident", 20, 2, 21, 1),
    Sketcher.Constraint("Coincident", 21, 2, 22, 1),
    Sketcher.Constraint("Coincident", 22, 2, 23, 1),
    Sketcher.Constraint("Coincident", 23, 2, 24, 1),
    Sketcher.Constraint("Coincident", 24, 2, 25, 1),
    Sketcher.Constraint("Coincident", 25, 2, 14, 1),
    Sketcher.Constraint("Vertical", 0),
    Sketcher.Constraint("Horizontal", 1),
    Sketcher.Constraint("Vertical", 2),
    Sketcher.Constraint("Horizontal", 3),
    Sketcher.Constraint("Horizontal", 6),
    Sketcher.Constraint("Vertical", 7),
    Sketcher.Constraint("Horizontal", 8),
    Sketcher.Constraint("Horizontal", 11),
    Sketcher.Constraint("Vertical", 12),
    Sketcher.Constraint("Horizontal", 13),
    Sketcher.Constraint("Horizontal", 14),
    Sketcher.Constraint("Vertical", 15),
    Sketcher.Constraint("Horizontal", 16),
    Sketcher.Constraint("Vertical", 17),
    Sketcher.Constraint("Horizontal", 18),
    Sketcher.Constraint("Vertical", 19),
    Sketcher.Constraint("Horizontal", 20),
    Sketcher.Constraint("Horizontal", 22),
    Sketcher.Constraint("Vertical", 23),
    Sketcher.Constraint("Horizontal", 24),
    Sketcher.Constraint("Equal", 4, 5),
    Sketcher.Constraint("Equal", 5, 9),
    Sketcher.Constraint("Equal", 9, 10),
    Sketcher.Constraint("Equal", 10, 21),
    Sketcher.Constraint("Equal", 21, 25),
    Sketcher.Constraint("Symmetric", 4, 3, 21, 3, -1, 1),
    Sketcher.Constraint("Symmetric", 9, 3, 25, 3, -1, 1),
    Sketcher.Constraint("Symmetric", 11, 2, 14, 2, -1, 1),
    Sketcher.Constraint("Symmetric", 13, 2, 16, 2, -1, 1),
    Sketcher.Constraint("Symmetric", 1, 2, 18, 2, -1, 1),
    Sketcher.Constraint("Symmetric", 6, 2, 22, 2, -1, 1),
    Sketcher.Constraint("Symmetric", 9, 3, 21, 3, -2),
    Sketcher.Constraint("Symmetric", 2, 2, 14, 2, -2),
    Sketcher.Constraint("Horizontal", 25, 3, 4, 2),
    Sketcher.Constraint("Horizontal", 21, 3, 9, 2),
    Sketcher.Constraint("Horizontal", 1, 2, 15, 2),
    Sketcher.Constraint("Horizontal", 11, 2, 19, 2),
    Sketcher.Constraint("Horizontal", 8, 2, 21, 2),
    Sketcher.Constraint("Horizontal", 6, 2, 23, 2),
    Sketcher.Constraint("Vertical", 3, 2, 5, 2),
    Sketcher.Constraint("Vertical", 2, 2, 6, 2),
    Sketcher.Constraint("Radius", 4, Q("2.2 mm")),
    Sketcher.Constraint("DistanceY", 0, 2, 0, 1, Q("19 mm")),
    Sketcher.Constraint("DistanceX", 1, 2, 1, 1, Q("6.8 mm")),
    Sketcher.Constraint("DistanceY", 2, 1, 2, 2, Q("3.3 mm")),
    Sketcher.Constraint("DistanceY", 7, 1, 7, 2, Q("7.6 mm")),
    Sketcher.Constraint("DistanceX", 0, 2, -1, 1, Q("20 mm")),
    Sketcher.Constraint("DistanceX", 4, 2, 14, 2, Q("49 mm")),
])
pad9 = doc.addObject("PartDesign::Pad", "Pad008")
body.addObject(pad9)
pad9.Profile = sketch11
pad9.Length = 2.4

sketch12 = doc.addObject("Sketcher::SketchObject", "Sketch011")
body.addObject(sketch12)
sketch12.AttachmentSupport = (doc.XY_Plane, [""])
sketch12.MapMode = "FlatFace"
sketch12.addGeometry([
    Part.LineSegment(App.Vector(-26.8, 32.8, 0), App.Vector(-20, 32.8, 0)),
    Part.LineSegment(App.Vector(-20, 32.8, 0), App.Vector(-20, 34.3, 0)),
    Part.LineSegment(App.Vector(-20, 34.3, 0), App.Vector(-26.8, 32.8, 0)),
    Part.LineSegment(App.Vector(20, 34.3, 0), App.Vector(20, 32.8, 0)),
    Part.LineSegment(App.Vector(20, 32.8, 0), App.Vector(26.8, 32.8, 0)),
    Part.LineSegment(App.Vector(26.8, 32.8, 0), App.Vector(20, 34.3, 0)),
], False)
sketch12.addConstraint([
    Sketcher.Constraint("Coincident", 0, 2, 1, 1),
    Sketcher.Constraint("Coincident", 1, 2, 2, 1),
    Sketcher.Constraint("Coincident", 2, 2, 0, 1),
    Sketcher.Constraint("Coincident", 3, 2, 4, 1),
    Sketcher.Constraint("Coincident", 4, 2, 5, 1),
    Sketcher.Constraint("Coincident", 5, 2, 3, 1),
    Sketcher.Constraint("Horizontal", 0),
    Sketcher.Constraint("Vertical", 1),
    Sketcher.Constraint("Vertical", 3),
    Sketcher.Constraint("Horizontal", 4),
    Sketcher.Constraint("Symmetric", 0, 2, 3, 2, -2),
    Sketcher.Constraint("Horizontal", 1, 2, 5, 2),
    Sketcher.Constraint("Equal", 0, 4),
    Sketcher.Constraint("DistanceX", 0, 1, 0, 2, Q("6.8 mm")),
    Sketcher.Constraint("DistanceY", 1, 1, 1, 2, Q("1.5 mm")),
    Sketcher.Constraint("DistanceX", 0, 2, -1, 1, Q("20 mm")),
    Sketcher.Constraint("DistanceY", -1, 1, 0, 2, Q("32.8 mm")),
])
pad10 = doc.addObject("PartDesign::Pad", "Pad009")
body.addObject(pad10)
pad10.Profile = sketch12
pad10.Type = "TwoLengths"
pad10.Length = 0.5
pad10.Length2 = 0.5
doc.recompute()

fillet3 = doc.addObject("PartDesign::Fillet", "Fillet002")
body.addObject(fillet3)
fillet3.Base = (pad10, edges_at(pad10, [
    (-26.8, 31.6, -9.5),
    (-26.8, 31.6, 9.5),
    (26.8, 31.6, 9.5),
    (26.8, 31.6, -9.5),
]))
fillet3.Radius = 1.5

doc.recompute()
